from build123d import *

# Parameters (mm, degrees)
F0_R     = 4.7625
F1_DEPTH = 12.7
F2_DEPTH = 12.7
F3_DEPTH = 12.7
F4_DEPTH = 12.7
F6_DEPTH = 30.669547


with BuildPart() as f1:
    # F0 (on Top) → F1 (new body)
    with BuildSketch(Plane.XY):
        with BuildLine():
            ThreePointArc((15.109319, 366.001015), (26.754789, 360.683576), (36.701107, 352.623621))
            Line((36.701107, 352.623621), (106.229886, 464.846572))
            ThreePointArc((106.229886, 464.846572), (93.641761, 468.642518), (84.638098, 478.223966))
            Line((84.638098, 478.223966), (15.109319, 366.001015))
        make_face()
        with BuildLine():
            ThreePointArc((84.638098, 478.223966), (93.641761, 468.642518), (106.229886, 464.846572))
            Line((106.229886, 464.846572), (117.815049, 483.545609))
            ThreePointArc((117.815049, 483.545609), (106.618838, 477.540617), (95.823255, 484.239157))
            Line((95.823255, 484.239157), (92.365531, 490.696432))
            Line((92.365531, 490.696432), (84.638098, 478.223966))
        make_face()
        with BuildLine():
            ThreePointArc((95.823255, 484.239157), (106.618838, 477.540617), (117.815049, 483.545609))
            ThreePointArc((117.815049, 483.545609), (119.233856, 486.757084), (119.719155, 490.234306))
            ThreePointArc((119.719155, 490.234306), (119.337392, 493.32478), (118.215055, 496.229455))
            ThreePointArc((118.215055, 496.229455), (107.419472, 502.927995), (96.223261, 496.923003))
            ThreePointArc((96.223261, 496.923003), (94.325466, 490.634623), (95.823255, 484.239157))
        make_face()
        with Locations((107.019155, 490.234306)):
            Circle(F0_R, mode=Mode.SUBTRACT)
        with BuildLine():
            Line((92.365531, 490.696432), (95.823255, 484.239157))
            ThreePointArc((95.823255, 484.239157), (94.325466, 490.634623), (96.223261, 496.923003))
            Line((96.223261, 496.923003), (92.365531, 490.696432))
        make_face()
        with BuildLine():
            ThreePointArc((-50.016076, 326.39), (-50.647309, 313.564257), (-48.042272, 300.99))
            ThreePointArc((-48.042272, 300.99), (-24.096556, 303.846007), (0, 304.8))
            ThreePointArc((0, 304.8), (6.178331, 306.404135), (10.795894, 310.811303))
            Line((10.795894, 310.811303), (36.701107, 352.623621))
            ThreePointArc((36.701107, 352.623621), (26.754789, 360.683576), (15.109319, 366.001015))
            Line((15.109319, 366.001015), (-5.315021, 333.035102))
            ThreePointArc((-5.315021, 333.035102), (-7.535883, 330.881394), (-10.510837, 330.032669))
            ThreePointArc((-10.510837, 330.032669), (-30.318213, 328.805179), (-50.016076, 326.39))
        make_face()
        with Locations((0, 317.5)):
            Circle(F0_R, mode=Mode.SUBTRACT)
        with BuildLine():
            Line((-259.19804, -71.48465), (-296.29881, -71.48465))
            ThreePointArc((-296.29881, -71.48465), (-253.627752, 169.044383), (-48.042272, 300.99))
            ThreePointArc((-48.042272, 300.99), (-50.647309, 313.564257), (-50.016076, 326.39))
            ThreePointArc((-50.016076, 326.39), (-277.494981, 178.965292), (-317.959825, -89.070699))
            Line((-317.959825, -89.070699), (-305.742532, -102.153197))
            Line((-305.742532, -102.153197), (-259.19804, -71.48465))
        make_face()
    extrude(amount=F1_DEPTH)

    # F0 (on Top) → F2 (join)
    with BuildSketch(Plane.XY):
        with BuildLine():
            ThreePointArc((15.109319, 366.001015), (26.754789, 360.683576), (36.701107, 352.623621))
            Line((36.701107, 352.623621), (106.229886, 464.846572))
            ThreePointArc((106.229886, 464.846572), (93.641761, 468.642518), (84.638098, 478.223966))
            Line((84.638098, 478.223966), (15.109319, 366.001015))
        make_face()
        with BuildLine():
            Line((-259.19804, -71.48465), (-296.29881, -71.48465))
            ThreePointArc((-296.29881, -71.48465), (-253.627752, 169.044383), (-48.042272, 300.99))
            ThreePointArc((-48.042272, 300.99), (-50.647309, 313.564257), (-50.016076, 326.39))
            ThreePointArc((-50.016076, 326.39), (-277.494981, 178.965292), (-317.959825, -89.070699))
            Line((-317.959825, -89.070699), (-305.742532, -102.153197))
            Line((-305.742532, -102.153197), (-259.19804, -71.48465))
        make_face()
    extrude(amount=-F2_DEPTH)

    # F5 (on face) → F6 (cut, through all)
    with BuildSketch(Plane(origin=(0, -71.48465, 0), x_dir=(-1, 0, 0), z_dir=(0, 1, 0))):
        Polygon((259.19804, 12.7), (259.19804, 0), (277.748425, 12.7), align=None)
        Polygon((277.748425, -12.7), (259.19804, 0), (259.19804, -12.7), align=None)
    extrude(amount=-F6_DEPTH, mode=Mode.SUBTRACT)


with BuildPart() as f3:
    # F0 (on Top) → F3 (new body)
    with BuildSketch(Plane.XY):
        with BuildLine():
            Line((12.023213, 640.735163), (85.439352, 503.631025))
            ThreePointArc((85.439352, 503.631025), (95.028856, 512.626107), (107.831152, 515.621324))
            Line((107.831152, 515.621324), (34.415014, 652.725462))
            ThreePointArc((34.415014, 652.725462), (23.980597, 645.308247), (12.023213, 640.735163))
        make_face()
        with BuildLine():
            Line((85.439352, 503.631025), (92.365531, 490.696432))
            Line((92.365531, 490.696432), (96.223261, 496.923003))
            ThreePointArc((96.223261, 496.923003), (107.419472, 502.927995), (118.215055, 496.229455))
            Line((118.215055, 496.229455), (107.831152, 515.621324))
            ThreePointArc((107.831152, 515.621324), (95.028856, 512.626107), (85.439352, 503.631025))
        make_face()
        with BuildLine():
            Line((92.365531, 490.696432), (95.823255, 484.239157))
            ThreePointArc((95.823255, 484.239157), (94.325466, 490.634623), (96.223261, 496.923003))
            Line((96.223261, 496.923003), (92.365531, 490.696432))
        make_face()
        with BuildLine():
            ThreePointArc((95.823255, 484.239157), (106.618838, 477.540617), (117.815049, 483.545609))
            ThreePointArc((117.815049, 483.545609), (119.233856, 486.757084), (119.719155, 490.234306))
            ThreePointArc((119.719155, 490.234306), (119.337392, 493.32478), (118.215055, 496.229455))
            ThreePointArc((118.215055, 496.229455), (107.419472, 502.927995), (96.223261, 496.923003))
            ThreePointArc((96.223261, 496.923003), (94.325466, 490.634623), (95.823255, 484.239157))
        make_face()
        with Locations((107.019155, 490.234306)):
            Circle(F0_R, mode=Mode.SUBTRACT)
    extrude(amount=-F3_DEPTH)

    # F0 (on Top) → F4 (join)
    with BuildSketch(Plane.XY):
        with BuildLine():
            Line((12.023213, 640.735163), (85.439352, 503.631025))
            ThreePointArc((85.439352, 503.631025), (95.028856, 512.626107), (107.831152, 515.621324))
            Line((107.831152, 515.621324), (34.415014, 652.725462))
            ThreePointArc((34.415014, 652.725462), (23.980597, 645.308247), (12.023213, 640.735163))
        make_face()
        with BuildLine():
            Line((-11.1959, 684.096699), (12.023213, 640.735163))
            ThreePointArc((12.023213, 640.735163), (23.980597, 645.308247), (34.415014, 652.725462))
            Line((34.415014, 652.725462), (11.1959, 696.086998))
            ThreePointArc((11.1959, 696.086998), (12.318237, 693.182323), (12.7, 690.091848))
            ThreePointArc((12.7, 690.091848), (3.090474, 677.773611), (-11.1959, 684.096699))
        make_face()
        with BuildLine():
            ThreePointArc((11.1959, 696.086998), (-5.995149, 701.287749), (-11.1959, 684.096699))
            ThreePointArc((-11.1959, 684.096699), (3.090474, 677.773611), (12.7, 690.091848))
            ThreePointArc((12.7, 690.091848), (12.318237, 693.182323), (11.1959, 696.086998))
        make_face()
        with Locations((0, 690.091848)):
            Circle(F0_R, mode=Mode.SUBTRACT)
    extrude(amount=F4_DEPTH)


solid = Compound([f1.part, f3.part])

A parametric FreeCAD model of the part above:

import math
import FreeCAD as App
import Part
import Sketcher
from FreeCAD import Vector
Q = App.Units.Quantity


def add_polygon(sketch, points):
    """Adds a closed chain of lines whose ends are joined by coincident constraints."""
    first, n = sketch.GeometryCount, len(points)
    for a, b in zip(points, points[1:] + points[:1]):
        sketch.addGeometry(Part.LineSegment(App.Vector(*a, 0), App.Vector(*b, 0)), False)
    for i in range(n):
        sketch.addConstraint(Sketcher.Constraint("Coincident", first + i, 2, first + (i + 1) % n, 1))

doc = App.newDocument("Part")
params = doc.addObject("Spreadsheet::Sheet", "Params")
for row, (alias, value) in enumerate([
    ("sketch1_radius", "12.9999999 in"),
    ("sketch1_radius2", "12 in"),
    ("sketch1_radius3", "0.5000002 in"),
    ("sketch1_radius4", "0.5 in"),
    ("sketch1_radius5", "0.25 in"),
    ("pad1_length", "0.5 in"),
    ("sketch2_radius", "1 in"),
    ("sketch2_radius2", "12 in"),
    ("sketch2_radius3", "2 in"),
    ("sketch2_radius4", "12.9999999 in"),
    ("pad2_length", "0.5 in"),
    ("sketch3_height", "0.5 in"),
    ("sketch4_radius", "0.5 in"),
    ("sketch4_diameter", "0.375 in"),
    ("pad3_length", "0.5 in"),
    ("sketch5_radius", "0.9999999 in"),
    ("sketch5_radius2", "0.5 in"),
    ("sketch5_diameter", "0.375 in"),
    ("pad4_length", "0.5 in"),
], start=1):
    params.set(f"A{row}", alias)
    params.set(f"B{row}", "=" + value)
    params.setAlias(f"B{row}", alias)

body = doc.addObject("PartDesign::Body", "Body")

sketch1 = body.newObject("Sketcher::SketchObject", "Sketch")
sketch1.AttachmentSupport = (doc.getObject("XY_Plane"), [""])
sketch1.MapMode = "FlatFace"
sketch1.addGeometry([
    Part.LineSegment(Vector(36.701107, 352.623621, 0), Vector(106.229886, 464.846572, 0)),
    Part.LineSegment(Vector(106.229886, 464.846572, 0), Vector(117.815049, 483.545609, 0)),
    Part.ArcOfCircle(Part.Circle(Vector(107.019151, 490.234308, 0), Vector(0, 0, 1), 12.700004), math.radians(-31.780668), math.radians(-0.000007)),
    Part.ArcOfCircle(Part.Circle(Vector(107.019153, 490.234304, 0), Vector(0, 0, 1), 12.700002), math.radians(0.000007), math.radians(28.168035)),
    Part.ArcOfCircle(Part.Circle(Vector(107.019155, 490.234306, 0), Vector(0, 0, 1), 12.7), math.radians(28.168032), math.radians(148.219329)),
    Part.LineSegment(Vector(96.223261, 496.923003, 0), Vector(92.365531, 490.696432, 0)),
    Part.LineSegment(Vector(92.365531, 490.696432, 0), Vector(84.638098, 478.223966, 0)),
    Part.LineSegment(Vector(84.638098, 478.223966, 0), Vector(15.109319, 366.001015, 0)),
    Part.LineSegment(Vector(15.109319, 366.001015, 0), Vector(-5.315021, 333.035102, 0)),
    Part.ArcOfCircle(Part.Circle(Vector(-10.712968, 336.379451, 0), Vector(0, 0, 1), 6.35), math.radians(-88.175873), math.radians(-31.780679)),
    Part.ArcOfCircle(Part.Circle(Vector(0.000032, -0.000295, 0), Vector(0, 0, 1), 330.200296), math.radians(91.824136), math.radians(98.712242)),
    Part.ArcOfCircle(Part.Circle(Vector(-0.000001, 0.000001, 0), Vector(0, 0, 1), 330.199999), math.radians(98.712244), math.radians(195.649256)),
    Part.LineSegment(Vector(-317.959825, -89.070699, 0), Vector(-305.742532, -102.153197, 0)),
    Part.LineSegment(Vector(-305.742532, -102.153197, 0), Vector(-259.19804, -71.48465, 0)),
    Part.LineSegment(Vector(-259.19804, -71.48465, 0), Vector(-296.29881, -71.48465, 0)),
    Part.ArcOfCircle(Part.Circle(Vector(0, 0, 0), Vector(0, 0, 1), 304.8), math.radians(99.068722), math.radians(193.563901)),
    Part.ArcOfCircle(Part.Circle(Vector(0.000001, -0.00001, 0), Vector(0, 0, 1), 304.80001), math.radians(90), math.radians(99.068721)),
    Part.ArcOfCircle(Part.Circle(Vector(-0.000001, 317.500001, 0), Vector(0, 0, 1), 12.700001), math.radians(-89.999997), math.radians(-31.780673)),
    Part.LineSegment(Vector(10.795894, 310.811303, 0), Vector(36.701107, 352.623621, 0)),
    Part.Circle(Vector(0, 317.5, 0), Vector(0, 0, 1), 4.7625),
    Part.Circle(Vector(107.019155, 490.234306, 0), Vector(0, 0, 1), 4.7625),
], False)
sketch1.addConstraint([
    Sketcher.Constraint("Coincident", 0, 2, 1, 1),
    Sketcher.Constraint("Coincident", 1, 2, 2, 1),
    Sketcher.Constraint("Coincident", 2, 2, 3, 1),
    Sketcher.Constraint("Coincident", 3, 2, 4, 1),
    Sketcher.Constraint("Coincident", 4, 2, 5, 1),
    Sketcher.Constraint("Coincident", 5, 2, 6, 1),
    Sketcher.Constraint("Coincident", 6, 2, 7, 1),
    Sketcher.Constraint("Coincident", 7, 2, 8, 1),
    Sketcher.Constraint("Coincident", 8, 2, 9, 2),
    Sketcher.Constraint("Coincident", 9, 1, 10, 1),
    Sketcher.Constraint("Coincident", 10, 2, 11, 1),
    Sketcher.Constraint("Coincident", 11, 2, 12, 1),
    Sketcher.Constraint("Coincident", 12, 2, 13, 1),
    Sketcher.Constraint("Coincident", 13, 2, 14, 1),
    Sketcher.Constraint("Coincident", 14, 2, 15, 2),
    Sketcher.Constraint("Coincident", 15, 1, 16, 2),
    Sketcher.Constraint("Coincident", 16, 1, 17, 1),
    Sketcher.Constraint("Coincident", 17, 2, 18, 1),
    Sketcher.Constraint("Coincident", 18, 2, 0, 1),
    Sketcher.Constraint("Horizontal", 14),
    Sketcher.Constraint("Coincident", 11, 3, -1, 1),
    Sketcher.Constraint("Coincident", 15, 3, -1, 1),
    Sketcher.Constraint("Coincident", 16, 3, -1, 1),
    Sketcher.Constraint("Coincident", 3, 3, 2, 3),
    Sketcher.Constraint("Coincident", 4, 3, 2, 3),
    Sketcher.Constraint("Coincident", 19, 3, 17, 3),
    Sketcher.Constraint("Coincident", 20, 3, 2, 3),
    Sketcher.Constraint("PointOnObject", 17, 3, -2),
    Sketcher.Constraint("PointOnObject", 16, 1, -2),
    Sketcher.Constraint("Radius", 11, Q("12.9999999 in")),
    Sketcher.Constraint("Radius", 15, Q("12 in")),
    Sketcher.Constraint("Radius", 2, Q("0.5000002 in")),
    Sketcher.Constraint("Radius", 17, Q("0.5 in")),
    Sketcher.Constraint("Radius", 9, Q("0.25 in")),
    Sketcher.Constraint("Diameter", 19, Q("0.375 in")),
    Sketcher.Constraint("Diameter", 20, Q("0.375 in")),
    Sketcher.Constraint("DistanceY", 15, 1, 10, 2, Q("1 in")),
    Sketcher.Constraint("DistanceY", -1, 1, 10, 2, Q("12.85 in")),
    Sketcher.Constraint("Radius", 10, Q("330.200296 mm")),
    Sketcher.Constraint("DistanceX", 12, 2, 14, 2, Q("0.3718001 in")),
    Sketcher.Constraint("DistanceX", 14, 2, 14, 1, Q("37.10077 mm")),
    Sketcher.Constraint("DistanceX", -1, 1, 6, 2, Q("84.638098 mm")),
    Sketcher.Constraint("DistanceY", -1, 1, 8, 2, Q("333.035102 mm")),
    Sketcher.Constraint("DistanceY", 11, 2, -1, 1, Q("89.070699 mm")),
    Sketcher.Constraint("DistanceX", 9, 3, 10, 3, Q("10.712999 mm")),
    Sketcher.Constraint("DistanceY", 10, 3, 3, 3, Q("490.234599 mm")),
    Sketcher.Constraint("DistanceY", 1, 2, 2, 3, Q("6.688699 mm")),
    Sketcher.Constraint("DistanceX", 3, 2, 2, 2, Q("1.5041 mm")),
    Sketcher.Constraint("DistanceY", 3, 3, 4, 2, Q("6.688699 mm")),
    Sketcher.Constraint("DistanceY", 12, 2, 11, 3, Q("102.153198 mm")),
    Sketcher.Constraint("DistanceY", 17, 2, 8, 2, Q("22.223799 mm")),
    Sketcher.Constraint("Distance", 5, Q("7.324771 mm")),
    Sketcher.Constraint("Distance", 12, Q("17.900112 mm")),
    Sketcher.Constraint("Distance", 18, Q("49.186888 mm")),
    Sketcher.Constraint("DistanceX", -1, 1, 2, 3, Q("107.019151 mm")),
    Sketcher.Constraint("DistanceY", -1, 1, 9, 3, Q("336.379451 mm")),
    Sketcher.Constraint("DistanceY", -1, 1, 0, 2, Q("464.846572 mm")),
    Sketcher.Constraint("DistanceX", -1, 1, 5, 2, Q("92.365531 mm")),
    Sketcher.Constraint("DistanceX", -1, 1, 7, 2, Q("15.109319 mm")),
    Sketcher.Constraint("DistanceY", -1, 1, 9, 1, Q("330.032669 mm")),
    Sketcher.Constraint("DistanceY", -1, 1, 18, 2, Q("352.623621 mm")),
    Sketcher.Constraint("DistanceX", 0, 2, 20, 3, Q("0.789269 mm")),
    Sketcher.Constraint("DistanceY", 2, 2, 3, 2, Q("5.995149 mm")),
    Sketcher.Constraint("DistanceY", 6, 2, 2, 3, Q("12.010342 mm")),
    Sketcher.Constraint("DistanceY", 7, 2, 6, 2, Q("112.222951 mm")),
])
sketch1.setExpression("Constraints[29]", "Params.sketch1_radius")
sketch1.setExpression("Constraints[30]", "Params.sketch1_radius2")
sketch1.setExpression("Constraints[31]", "Params.sketch1_radius3")
sketch1.setExpression("Constraints[32]", "Params.sketch1_radius4")
sketch1.setExpression("Constraints[33]", "Params.sketch1_radius5")
pad1 = body.newObject("PartDesign::Pad", "Pad")
pad1.Profile = sketch1
pad1.setExpression("Length", "Params.pad1_length")

sketch2 = body.newObject("Sketcher::SketchObject", "Sketch001")
sketch2.AttachmentSupport = (doc.getObject("XY_Plane"), [""])
sketch2.MapMode = "FlatFace"
sketch2.addGeometry([
    Part.ArcOfCircle(Part.Circle(Vector(-0.000003, 317.499994, 0), Vector(0, 0, 1), 50.800006), math.radians(43.741818), math.radians(72.696838)),
    Part.LineSegment(Vector(36.701107, 352.623621, 0), Vector(106.229886, 464.846572, 0)),
    Part.ArcOfCircle(Part.Circle(Vector(107.019155, 490.234306, 0), Vector(0, 0, 1), 25.4), math.radians(-151.780672), math.radians(-91.780672)),
    Part.LineSegment(Vector(84.638098, 478.223966, 0), Vector(15.109319, 366.001015, 0)),
    Part.LineSegment(Vector(-259.19804, -71.48465, 0), Vector(-296.29881, -71.48465, 0)),
    Part.ArcOfCircle(Part.Circle(Vector(0, 0, 0), Vector(0, 0, 1), 304.8), math.radians(99.068722), math.radians(193.563901)),
    Part.ArcOfCircle(Part.Circle(Vector(-0.000001, 317.499999, 0), Vector(0, 0, 1), 50.799999), math.radians(169.921341), math.radians(198.965574)),
    Part.ArcOfCircle(Part.Circle(Vector(-0.000001, 0.000001, 0), Vector(0, 0, 1), 330.199999), math.radians(98.712244), math.radians(195.649256)),
    Part.LineSegment(Vector(-317.959825, -89.070699, 0), Vector(-305.742532, -102.153197, 0)),
    Part.LineSegment(Vector(-305.742532, -102.153197, 0), Vector(-259.19804, -71.48465, 0)),
], False)
sketch2.addConstraint([
    Sketcher.Constraint("Coincident", 0, 1, 1, 1),
    Sketcher.Constraint("Coincident", 1, 2, 2, 2),
    Sketcher.Constraint("Coincident", 2, 1, 3, 1),
    Sketcher.Constraint("Coincident", 3, 2, 0, 2),
    Sketcher.Constraint("Coincident", 4, 2, 5, 2),
    Sketcher.Constraint("Coincident", 5, 1, 6, 2),
    Sketcher.Constraint("Coincident", 6, 1, 7, 1),
    Sketcher.Constraint("Coincident", 7, 2, 8, 1),
    Sketcher.Constraint("Coincident", 8, 2, 9, 1),
    Sketcher.Constraint("Coincident", 9, 2, 4, 1),
    Sketcher.Constraint("Horizontal", 4),
    Sketcher.Constraint("Coincident", 5, 3, -1, 1),
    Sketcher.Constraint("Coincident", 7, 3, -1, 1),
    Sketcher.Constraint("Coincident", 6, 3, 0, 3),
    Sketcher.Constraint("PointOnObject", 6, 3, -2),
    Sketcher.Constraint("Parallel", 1, 3),
    Sketcher.Constraint("Equal", 1, 3),
    Sketcher.Constraint("Radius", 2, Q("1 in")),
    Sketcher.Constraint("Radius", 5, Q("12 in")),
    Sketcher.Constraint("Radius", 6, Q("2 in")),
    Sketcher.Constraint("Radius", 7, Q("12.9999999 in")),
    Sketcher.Constraint("DistanceY", -1, 1, 6, 3, Q("12.5 in")),
    Sketcher.Constraint("Radius", 0, Q("50.800006 mm")),
    Sketcher.Constraint("DistanceX", 8, 2, 4, 2, Q("0.3718001 in")),
    Sketcher.Constraint("DistanceX", 4, 2, 4, 1, Q("37.10077 mm")),
    Sketcher.Constraint("DistanceY", 7, 2, -1, 1, Q("89.070699 mm")),
    Sketcher.Constraint("DistanceX", 6, 3, 2, 1, Q("84.638099 mm")),
    Sketcher.Constraint("DistanceY", 8, 2, 7, 3, Q("102.153198 mm")),
    Sketcher.Constraint("Distance", 8, Q("17.900112 mm")),
    Sketcher.Constraint("DistanceY", -1, 1, 0, 1, Q("352.623621 mm")),
    Sketcher.Constraint("DistanceY", -1, 1, 1, 2, Q("464.846572 mm")),
    Sketcher.Constraint("DistanceX", -1, 1, 3, 2, Q("15.109319 mm")),
])
sketch2.setExpression("Constraints[17]", "Params.sketch2_radius")
sketch2.setExpression("Constraints[18]", "Params.sketch2_radius2")
sketch2.setExpression("Constraints[19]", "Params.sketch2_radius3")
sketch2.setExpression("Constraints[20]", "Params.sketch2_radius4")
pad2 = body.newObject("PartDesign::Pad", "Pad001")
pad2.Profile = sketch2
pad2.setExpression("Length", "Params.pad2_length")
pad2.Reversed = True

sketch3 = body.newObject("Sketcher::SketchObject", "Sketch002")
sketch3.AttachmentSupport = (doc.getObject("XZ_Plane"), [""])
sketch3.MapMode = "FlatFace"
sketch3.AttachmentOffset = App.Placement(Vector(0, 0, 71.48465), App.Rotation())
add_polygon(sketch3, [(-259.19804, 12.7), (-259.19804, 0), (-277.748425, 12.7)])
add_polygon(sketch3, [(-277.748425, -12.7), (-259.19804, 0), (-259.19804, -12.7)])
sketch3.addConstraint([
    Sketcher.Constraint("Vertical", 0),
    Sketcher.Constraint("Horizontal", 2),
    Sketcher.Constraint("Vertical", 4),
    Sketcher.Constraint("Horizontal", 5),
    Sketcher.Constraint("Coincident", 3, 2, 0, 2),
    Sketcher.Constraint("Symmetric", 1, 2, 5, 2, -1),
    Sketcher.Constraint("PointOnObject", 0, 2, -1),
    Sketcher.Constraint("DistanceY", 0, 2, 0, 1, Q("0.5 in")),
    Sketcher.Constraint("DistanceX", 2, 1, 2, 2, Q("18.550385 mm")),
    Sketcher.Constraint("DistanceX", 0, 2, -1, 1, Q("259.19804 mm")),
])
sketch3.setExpression("Constraints[13]", "Params.sketch3_height")
pocket1 = body.newObject("PartDesign::Pocket", "Pocket")
pocket1.Profile = sketch3
pocket1.Type = "ThroughAll"
pocket1.Reversed = True
body2 = doc.addObject("PartDesign::Body", "Body001")

sketch4 = body2.newObject("Sketcher::SketchObject", "Sketch003")
sketch4.AttachmentSupport = (doc.getObject("XY_Plane001"), [""])
sketch4.MapMode = "FlatFace"
sketch4.addGeometry([
    Part.LineSegment(Vector(12.023213, 640.735163, 0), Vector(85.439352, 503.631025, 0)),
    Part.LineSegment(Vector(85.439352, 503.631025, 0), Vector(92.365531, 490.696432, 0)),
    Part.LineSegment(Vector(92.365531, 490.696432, 0), Vector(95.823255, 484.239157, 0)),
    Part.ArcOfCircle(Part.Circle(Vector(107.019155, 490.234306, 0), Vector(0, 0, 1), 12.7), math.radians(-151.831968), math.radians(-31.780671)),
    Part.ArcOfCircle(Part.Circle(Vector(107.019151, 490.234308, 0), Vector(0, 0, 1), 12.700004), math.radians(-31.780668), math.radians(-0.000007)),
    Part.ArcOfCircle(Part.Circle(Vector(107.019153, 490.234304, 0), Vector(0, 0, 1), 12.700002), math.radians(0.000007), math.radians(28.168035)),
    Part.LineSegment(Vector(118.215055, 496.229455, 0), Vector(107.831152, 515.621324, 0)),
    Part.LineSegment(Vector(107.831152, 515.621324, 0), Vector(34.415014, 652.725462, 0)),
    Part.ArcOfCircle(Part.Circle(Vector(-0.000007, 690.091861, 0), Vector(0, 0, 1), 50.800014), math.radians(-76.309474), math.radians(-47.354457)),
    Part.Circle(Vector(107.019155, 490.234306, 0), Vector(0, 0, 1), 4.7625),
], False)
sketch4.addConstraint([
    Sketcher.Constraint("Coincident", 0, 2, 1, 1),
    Sketcher.Constraint("Coincident", 1, 2, 2, 1),
    Sketcher.Constraint("Tangent", 2, 2, 3, 1),
    Sketcher.Constraint("Tangent", 3, 2, 4, 1),
    Sketcher.Constraint("Tangent", 4, 2, 5, 1),
    Sketcher.Constraint("Tangent", 5, 2, 6, 1),
    Sketcher.Constraint("Coincident", 6, 2, 7, 1),
    Sketcher.Constraint("Coincident", 7, 2, 8, 2),
    Sketcher.Constraint("Coincident", 8, 1, 0, 1),
    Sketcher.Constraint("Coincident", 5, 3, 3, 3),
    Sketcher.Constraint("Coincident", 9, 3, 3, 3),
    Sketcher.Constraint("Parallel", 0, 1),
    Sketcher.Constraint("Parallel", 1, 2),
    Sketcher.Constraint("Parallel", 2, 6),
    Sketcher.Constraint("Parallel", 6, 7),
    Sketcher.Constraint("Horizontal", 9, 3, 4, 2),
    Sketcher.Constraint("Equal", 0, 7),
    Sketcher.Constraint("Radius", 3, Q("0.5 in")),
    Sketcher.Constraint("Diameter", 9, Q("0.375 in")),
    Sketcher.Constraint("Radius", 8, Q("50.800014 mm")),
    Sketcher.Constraint("DistanceX", 0, 2, 4, 3, Q("21.579799 mm")),
    Sketcher.Constraint("DistanceX", 2, 2, 9, 3, Q("11.1959 mm")),
    Sketcher.Constraint("DistanceY", 3, 2, 4, 3, Q("6.688699 mm")),
    Sketcher.Constraint("DistanceX", 4, 3, 6, 2, Q("0.812001 mm")),
    Sketcher.Constraint("Distance", 2, Q("7.32477 mm")),
    Sketcher.Constraint("DistanceX", -1, 1, 4, 3, Q("107.019151 mm")),
    Sketcher.Constraint("DistanceY", -1, 1, 8, 3, Q("690.091861 mm")),
    Sketcher.Constraint("DistanceY", -1, 1, 1, 2, Q("490.696432 mm")),
])
sketch4.setExpression("Constraints[17]", "Params.sketch4_radius")
sketch4.setExpression("Constraints[18]", "Params.sketch4_diameter")
pad3 = body2.newObject("PartDesign::Pad", "Pad002")
pad3.Profile = sketch4
pad3.setExpression("Length", "Params.pad3_length")
pad3.Reversed = True

sketch5 = body2.newObject("Sketcher::SketchObject", "Sketch004")
sketch5.AttachmentSupport = (doc.getObject("XY_Plane001"), [""])
sketch5.MapMode = "FlatFace"
sketch5.addGeometry([
    Part.LineSegment(Vector(12.023213, 640.735163, 0), Vector(85.439352, 503.631025, 0)),
    Part.ArcOfCircle(Part.Circle(Vector(107.019154, 490.234309, 0), Vector(0, 0, 1), 25.399997), math.radians(88.168032), math.radians(148.168039)),
    Part.LineSegment(Vector(107.831152, 515.621324, 0), Vector(34.415014, 652.725462, 0)),
    Part.LineSegment(Vector(34.415014, 652.725462, 0), Vector(11.1959, 696.086998, 0)),
    Part.ArcOfCircle(Part.Circle(Vector(0, 690.091849, 0), Vector(0, 0, 1), 12.7), math.radians(28.168035), math.radians(208.168036)),
    Part.LineSegment(Vector(-11.1959, 684.096699, 0), Vector(12.023213, 640.735163, 0)),
    Part.Circle(Vector(0, 690.091848, 0), Vector(0, 0, 1), 4.7625),
], False)
sketch5.addConstraint([
    Sketcher.Constraint("Coincident", 0, 2, 1, 2),
    Sketcher.Constraint("Coincident", 1, 1, 2, 1),
    Sketcher.Constraint("Coincident", 2, 2, 3, 1),
    Sketcher.Constraint("Tangent", 3, 2, 4, 1),
    Sketcher.Constraint("Tangent", 4, 2, 5, 1),
    Sketcher.Constraint("Coincident", 5, 2, 0, 1),
    Sketcher.Constraint("Coincident", 6, 3, 4, 3),
    Sketcher.Constraint("PointOnObject", 4, 3, -2),
    Sketcher.Constraint("Parallel", 0, 2),
    Sketcher.Constraint("Parallel", 2, 3),
    Sketcher.Constraint("Parallel", 3, 5),
    Sketcher.Constraint("Equal", 0, 2),
    Sketcher.Constraint("Equal", 3, 5),
    Sketcher.Constraint("Radius", 1, Q("0.9999999 in")),
    Sketcher.Constraint("Radius", 4, Q("0.5 in")),
    Sketcher.Constraint("Diameter", 6, Q("0.375 in")),
    Sketcher.Constraint("DistanceY", -1, 1, 3, 2, Q("27.4049999 in")),
    Sketcher.Constraint("DistanceX", -1, 1, 3, 2, Q("11.1959 mm")),
    Sketcher.Constraint("Distance", 3, Q("49.186889 mm")),
    Sketcher.Constraint("DistanceY", -1, 1, 1, 3, Q("490.234309 mm")),
])
sketch5.setExpression("Constraints[13]", "Params.sketch5_radius")
sketch5.setExpression("Constraints[14]", "Params.sketch5_radius2")
sketch5.setExpression("Constraints[15]", "Params.sketch5_diameter")
pad4 = body2.newObject("PartDesign::Pad", "Pad003")
pad4.Profile = sketch5
pad4.setExpression("Length", "Params.pad4_length")

doc.recompute()
